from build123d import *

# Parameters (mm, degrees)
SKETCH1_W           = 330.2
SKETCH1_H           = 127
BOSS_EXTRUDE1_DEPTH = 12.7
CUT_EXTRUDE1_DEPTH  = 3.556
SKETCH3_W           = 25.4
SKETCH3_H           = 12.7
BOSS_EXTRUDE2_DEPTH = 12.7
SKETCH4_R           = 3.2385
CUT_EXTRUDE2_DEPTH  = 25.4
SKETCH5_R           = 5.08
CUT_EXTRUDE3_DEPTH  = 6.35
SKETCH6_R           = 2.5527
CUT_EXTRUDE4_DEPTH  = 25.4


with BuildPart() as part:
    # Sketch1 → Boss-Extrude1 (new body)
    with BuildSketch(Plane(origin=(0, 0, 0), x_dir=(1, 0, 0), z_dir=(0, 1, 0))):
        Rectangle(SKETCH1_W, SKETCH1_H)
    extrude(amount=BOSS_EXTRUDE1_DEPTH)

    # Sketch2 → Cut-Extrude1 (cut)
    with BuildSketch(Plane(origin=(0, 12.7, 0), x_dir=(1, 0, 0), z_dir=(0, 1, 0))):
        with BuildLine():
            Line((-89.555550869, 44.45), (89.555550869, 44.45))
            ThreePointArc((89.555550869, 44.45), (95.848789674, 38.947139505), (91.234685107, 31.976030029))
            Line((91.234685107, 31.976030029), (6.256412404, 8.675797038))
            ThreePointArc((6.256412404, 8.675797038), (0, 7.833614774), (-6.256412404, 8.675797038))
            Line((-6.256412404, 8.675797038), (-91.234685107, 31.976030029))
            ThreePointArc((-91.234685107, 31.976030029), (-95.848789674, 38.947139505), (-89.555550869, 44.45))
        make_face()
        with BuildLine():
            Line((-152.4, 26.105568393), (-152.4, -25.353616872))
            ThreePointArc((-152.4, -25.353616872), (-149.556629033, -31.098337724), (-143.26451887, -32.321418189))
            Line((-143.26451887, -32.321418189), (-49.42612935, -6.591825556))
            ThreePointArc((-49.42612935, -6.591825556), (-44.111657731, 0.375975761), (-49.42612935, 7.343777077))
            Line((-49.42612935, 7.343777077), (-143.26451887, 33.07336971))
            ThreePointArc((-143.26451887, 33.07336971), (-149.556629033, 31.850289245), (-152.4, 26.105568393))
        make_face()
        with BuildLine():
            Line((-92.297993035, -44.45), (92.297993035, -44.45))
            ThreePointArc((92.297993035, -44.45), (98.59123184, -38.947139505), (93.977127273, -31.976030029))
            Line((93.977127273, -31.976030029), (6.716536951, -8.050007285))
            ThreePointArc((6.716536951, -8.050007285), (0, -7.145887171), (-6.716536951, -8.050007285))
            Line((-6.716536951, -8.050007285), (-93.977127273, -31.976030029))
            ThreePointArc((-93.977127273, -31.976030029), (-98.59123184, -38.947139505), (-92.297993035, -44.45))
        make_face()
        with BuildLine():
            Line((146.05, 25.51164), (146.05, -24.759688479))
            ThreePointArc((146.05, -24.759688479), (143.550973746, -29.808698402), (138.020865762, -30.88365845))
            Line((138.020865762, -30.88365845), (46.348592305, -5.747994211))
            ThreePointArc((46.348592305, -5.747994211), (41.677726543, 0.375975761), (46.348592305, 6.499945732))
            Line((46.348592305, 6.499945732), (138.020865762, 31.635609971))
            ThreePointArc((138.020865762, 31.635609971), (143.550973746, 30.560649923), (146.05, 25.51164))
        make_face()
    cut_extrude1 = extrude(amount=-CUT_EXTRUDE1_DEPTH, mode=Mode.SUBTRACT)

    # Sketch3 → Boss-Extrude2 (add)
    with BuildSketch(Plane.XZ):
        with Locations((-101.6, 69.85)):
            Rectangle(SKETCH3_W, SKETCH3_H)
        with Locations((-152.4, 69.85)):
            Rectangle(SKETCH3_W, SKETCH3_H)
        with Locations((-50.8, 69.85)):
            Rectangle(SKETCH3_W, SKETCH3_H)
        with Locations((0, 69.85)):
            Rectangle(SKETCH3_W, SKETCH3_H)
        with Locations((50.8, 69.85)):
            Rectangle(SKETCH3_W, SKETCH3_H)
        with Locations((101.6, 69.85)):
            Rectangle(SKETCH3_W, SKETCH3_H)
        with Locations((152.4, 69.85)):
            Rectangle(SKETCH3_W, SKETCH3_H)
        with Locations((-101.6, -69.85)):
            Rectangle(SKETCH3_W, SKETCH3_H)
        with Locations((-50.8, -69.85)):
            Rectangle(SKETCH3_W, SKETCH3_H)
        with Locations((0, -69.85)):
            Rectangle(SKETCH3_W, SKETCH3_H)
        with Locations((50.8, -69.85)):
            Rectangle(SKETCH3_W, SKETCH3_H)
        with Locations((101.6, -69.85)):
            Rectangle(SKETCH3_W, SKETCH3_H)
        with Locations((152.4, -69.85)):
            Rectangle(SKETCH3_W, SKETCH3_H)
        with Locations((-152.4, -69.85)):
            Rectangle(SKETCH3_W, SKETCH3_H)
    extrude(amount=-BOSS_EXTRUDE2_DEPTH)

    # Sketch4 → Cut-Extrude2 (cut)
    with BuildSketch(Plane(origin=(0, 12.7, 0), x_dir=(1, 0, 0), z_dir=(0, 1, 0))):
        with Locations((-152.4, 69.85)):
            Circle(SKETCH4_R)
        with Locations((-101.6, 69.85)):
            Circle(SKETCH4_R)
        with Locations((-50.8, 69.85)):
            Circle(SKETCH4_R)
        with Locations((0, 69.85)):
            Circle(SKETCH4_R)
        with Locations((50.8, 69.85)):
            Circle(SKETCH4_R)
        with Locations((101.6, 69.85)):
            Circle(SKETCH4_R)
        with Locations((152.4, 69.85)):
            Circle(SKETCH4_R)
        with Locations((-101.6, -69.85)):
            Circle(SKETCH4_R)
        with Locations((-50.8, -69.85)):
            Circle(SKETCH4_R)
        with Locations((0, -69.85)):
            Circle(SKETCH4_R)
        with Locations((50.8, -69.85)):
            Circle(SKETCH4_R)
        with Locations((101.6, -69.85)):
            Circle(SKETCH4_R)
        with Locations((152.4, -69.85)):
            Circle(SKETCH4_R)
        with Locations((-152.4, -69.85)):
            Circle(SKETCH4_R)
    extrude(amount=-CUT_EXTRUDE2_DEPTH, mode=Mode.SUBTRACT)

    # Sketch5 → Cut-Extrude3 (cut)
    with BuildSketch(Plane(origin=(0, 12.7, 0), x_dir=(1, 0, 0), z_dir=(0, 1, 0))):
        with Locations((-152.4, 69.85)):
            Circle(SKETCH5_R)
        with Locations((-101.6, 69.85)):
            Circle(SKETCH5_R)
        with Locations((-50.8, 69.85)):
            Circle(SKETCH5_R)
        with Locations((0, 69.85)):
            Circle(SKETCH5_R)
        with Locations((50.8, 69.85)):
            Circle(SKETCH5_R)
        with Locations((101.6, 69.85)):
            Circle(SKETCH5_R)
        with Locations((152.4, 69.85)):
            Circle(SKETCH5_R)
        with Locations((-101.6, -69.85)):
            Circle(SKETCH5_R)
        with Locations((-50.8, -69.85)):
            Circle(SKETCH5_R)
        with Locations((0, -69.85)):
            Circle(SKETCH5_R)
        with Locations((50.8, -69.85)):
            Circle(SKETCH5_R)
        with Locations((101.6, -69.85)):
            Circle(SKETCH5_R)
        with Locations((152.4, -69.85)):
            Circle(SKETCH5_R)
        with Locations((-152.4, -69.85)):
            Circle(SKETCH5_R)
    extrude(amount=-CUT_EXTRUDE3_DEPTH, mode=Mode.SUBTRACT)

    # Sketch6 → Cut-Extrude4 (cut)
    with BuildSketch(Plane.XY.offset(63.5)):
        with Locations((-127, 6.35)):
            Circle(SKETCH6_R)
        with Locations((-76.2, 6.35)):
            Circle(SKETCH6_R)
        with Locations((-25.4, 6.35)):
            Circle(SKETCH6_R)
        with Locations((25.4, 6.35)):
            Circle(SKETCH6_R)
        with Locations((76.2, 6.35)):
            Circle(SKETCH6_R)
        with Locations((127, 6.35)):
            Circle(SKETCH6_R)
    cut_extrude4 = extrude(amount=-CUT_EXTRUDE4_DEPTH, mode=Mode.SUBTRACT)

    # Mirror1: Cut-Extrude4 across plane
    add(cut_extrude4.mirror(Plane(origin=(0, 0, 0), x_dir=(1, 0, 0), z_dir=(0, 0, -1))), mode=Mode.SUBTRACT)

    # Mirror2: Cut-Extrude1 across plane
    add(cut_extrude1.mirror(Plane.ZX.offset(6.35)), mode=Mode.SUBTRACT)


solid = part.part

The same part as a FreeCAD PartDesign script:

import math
import FreeCAD as App
import Part
import Sketcher

V = App.Vector
Q = App.Units.Quantity

doc = App.newDocument("Part")
body = doc.addObject("PartDesign::Body", "Body")

sketch1 = body.newObject("Sketcher::SketchObject", "Sketch")
sketch1.AttachmentSupport = (doc.getObject("XZ_Plane"), [""])
sketch1.MapMode = "FlatFace"
sketch1.addGeometry(Part.LineSegment(V(-165.1, -63.5, 0), V(-165.1, 63.5, 0)), False)
sketch1.addGeometry(Part.LineSegment(V(-165.1, 63.5, 0), V(165.1, 63.5, 0)), False)
sketch1.addGeometry(Part.LineSegment(V(165.1, 63.5, 0), V(165.1, -63.5, 0)), False)
sketch1.addGeometry(Part.LineSegment(V(165.1, -63.5, 0), V(-165.1, -63.5, 0)), False)
sketch1.addConstraint(Sketcher.Constraint("Coincident", 0, 2, 1, 1))
sketch1.addConstraint(Sketcher.Constraint("Coincident", 1, 2, 2, 1))
sketch1.addConstraint(Sketcher.Constraint("Coincident", 2, 2, 3, 1))
sketch1.addConstraint(Sketcher.Constraint("Coincident", 3, 2, 0, 1))
sketch1.addConstraint(Sketcher.Constraint("Vertical", 0))
sketch1.addConstraint(Sketcher.Constraint("Horizontal", 1))
sketch1.addConstraint(Sketcher.Constraint("Vertical", 2))
sketch1.addConstraint(Sketcher.Constraint("Horizontal", 3))
sketch1.addConstraint(Sketcher.Constraint("Symmetric", 0, 2, 2, 2, -1, 1))
sketch1.addConstraint(Sketcher.Constraint("DistanceX", 1, 1, 1, 2, Q("13 in")))
sketch1.addConstraint(Sketcher.Constraint("DistanceY", 0, 1, 0, 2, Q("5 in")))
pad1 = body.newObject("PartDesign::Pad", "Pad")
pad1.Profile = sketch1
pad1.Length = Q("0.5 in")
pad1.Reversed = True

sketch2 = body.newObject("Sketcher::SketchObject", "Sketch001")
sketch2.AttachmentSupport = (doc.getObject("XZ_Plane"), [""])
sketch2.MapMode = "FlatFace"
sketch2.AttachmentOffset = App.Placement(V(0, 0, -0.5 * 25.4), App.Rotation())
sketch2.addGeometry(Part.LineSegment(V(89.555551, -44.45, 0), V(-89.555551, -44.45, 0)), False)
sketch2.addGeometry(Part.ArcOfCircle(Part.Circle(V(-89.555551, -38.1, 0), V(0, 0, 1), 6.35), math.radians(105.333121), math.radians(270)), False)
sketch2.addGeometry(Part.LineSegment(V(-91.234685, -31.97603, 0), V(-6.256412, -8.675797, 0)), False)
sketch2.addGeometry(Part.ArcOfCircle(Part.Circle(V(0, -31.493557, 0), V(0, 0, 1), 23.659942), math.radians(74.666879), math.radians(105.333121)), False)
sketch2.addGeometry(Part.LineSegment(V(6.256412, -8.675797, 0), V(91.234685, -31.97603, 0)), False)
sketch2.addGeometry(Part.ArcOfCircle(Part.Circle(V(89.555551, -38.1, 0), V(0, 0, 1), 6.35), math.radians(-90), math.radians(74.666879)), False)
sketch2.addGeometry(Part.LineSegment(V(-152.4, -26.105568, 0), V(-152.4, 25.353617, 0)), False)
sketch2.addGeometry(Part.ArcOfCircle(Part.Circle(V(-145.175024, 25.353617, 0), V(0, 0, 1), 7.224976), math.radians(74.666879), math.radians(180)), False)
sketch2.addGeometry(Part.LineSegment(V(-143.264519, 32.321418, 0), V(-49.426129, 6.591826, 0)), False)
sketch2.addGeometry(Part.ArcOfCircle(Part.Circle(V(-51.336634, -0.375976, 0), V(0, 0, 1), 7.224976), math.radians(-74.666879), math.radians(74.666879)), False)
sketch2.addGeometry(Part.LineSegment(V(-49.426129, -7.343777, 0), V(-143.264519, -33.07337, 0)), False)
sketch2.addGeometry(Part.ArcOfCircle(Part.Circle(V(-145.175024, -26.105568, 0), V(0, 0, 1), 7.224976), math.radians(180), math.radians(285.333121)), False)
sketch2.addGeometry(Part.LineSegment(V(-92.297993, 44.45, 0), V(92.297993, 44.45, 0)), False)
sketch2.addGeometry(Part.ArcOfCircle(Part.Circle(V(92.297993, 38.1, 0), V(0, 0, 1), 6.35), math.radians(-74.666879), math.radians(90)), False)
sketch2.addGeometry(Part.LineSegment(V(93.977127, 31.97603, 0), V(6.716537, 8.050007, 0)), False)
sketch2.addGeometry(Part.ArcOfCircle(Part.Circle(V(0, 32.545887, 0), V(0, 0, 1), 25.4), math.radians(-105.333121), math.radians(-74.666879)), False)
sketch2.addGeometry(Part.LineSegment(V(-6.716537, 8.050007, 0), V(-93.977127, 31.97603, 0)), False)
sketch2.addGeometry(Part.ArcOfCircle(Part.Circle(V(-92.297993, 38.1, 0), V(0, 0, 1), 6.35), math.radians(90), math.radians(254.666879)), False)
sketch2.addGeometry(Part.LineSegment(V(146.05, 24.759688, 0), V(146.05, -25.51164, 0)), False)
sketch2.addGeometry(Part.ArcOfCircle(Part.Circle(V(139.7, -25.51164, 0), V(0, 0, 1), 6.35), math.radians(-105.333121), math.radians(0)), False)
sketch2.addGeometry(Part.LineSegment(V(138.020866, -31.63561, 0), V(46.348592, -6.499946, 0)), False)
sketch2.addGeometry(Part.ArcOfCircle(Part.Circle(V(48.027727, -0.375976, 0), V(0, 0, 1), 6.35), math.radians(105.333121), math.radians(254.666879)), False)
sketch2.addGeometry(Part.LineSegment(V(46.348592, 5.747994, 0), V(138.020866, 30.883658, 0)), False)
sketch2.addGeometry(Part.ArcOfCircle(Part.Circle(V(139.7, 24.759688, 0), V(0, 0, 1), 6.35), math.radians(0), math.radians(105.333121)), False)
sketch2.addConstraint(Sketcher.Constraint("Tangent", 0, 2, 1, 2))
sketch2.addConstraint(Sketcher.Constraint("Tangent", 1, 1, 2, 1))
sketch2.addConstraint(Sketcher.Constraint("Tangent", 2, 2, 3, 2))
sketch2.addConstraint(Sketcher.Constraint("Tangent", 3, 1, 4, 1))
sketch2.addConstraint(Sketcher.Constraint("Tangent", 4, 2, 5, 2))
sketch2.addConstraint(Sketcher.Constraint("Tangent", 5, 1, 0, 1))
sketch2.addConstraint(Sketcher.Constraint("Tangent", 6, 2, 7, 2))
sketch2.addConstraint(Sketcher.Constraint("Tangent", 7, 1, 8, 1))
sketch2.addConstraint(Sketcher.Constraint("Tangent", 8, 2, 9, 2))
sketch2.addConstraint(Sketcher.Constraint("Tangent", 9, 1, 10, 1))
sketch2.addConstraint(Sketcher.Constraint("Tangent", 10, 2, 11, 2))
sketch2.addConstraint(Sketcher.Constraint("Tangent", 11, 1, 6, 1))
sketch2.addConstraint(Sketcher.Constraint("Tangent", 12, 2, 13, 2))
sketch2.addConstraint(Sketcher.Constraint("Tangent", 13, 1, 14, 1))
sketch2.addConstraint(Sketcher.Constraint("Tangent", 14, 2, 15, 2))
sketch2.addConstraint(Sketcher.Constraint("Tangent", 15, 1, 16, 1))
sketch2.addConstraint(Sketcher.Constraint("Tangent", 16, 2, 17, 2))
sketch2.addConstraint(Sketcher.Constraint("Tangent", 17, 1, 12, 1))
sketch2.addConstraint(Sketcher.Constraint("Tangent", 18, 2, 19, 2))
sketch2.addConstraint(Sketcher.Constraint("Tangent", 19, 1, 20, 1))
sketch2.addConstraint(Sketcher.Constraint("Tangent", 20, 2, 21, 2))
sketch2.addConstraint(Sketcher.Constraint("Tangent", 21, 1, 22, 1))
sketch2.addConstraint(Sketcher.Constraint("Tangent", 22, 2, 23, 2))
sketch2.addConstraint(Sketcher.Constraint("Tangent", 23, 1, 18, 1))
sketch2.addConstraint(Sketcher.Constraint("Horizontal", 0))
sketch2.addConstraint(Sketcher.Constraint("Vertical", 6))
sketch2.addConstraint(Sketcher.Constraint("Horizontal", 12))
sketch2.addConstraint(Sketcher.Constraint("Vertical", 18))
sketch2.addConstraint(Sketcher.Constraint("Equal", 1, 5))
sketch2.addConstraint(Sketcher.Constraint("Equal", 7, 9))
sketch2.addConstraint(Sketcher.Constraint("Equal", 9, 11))
sketch2.addConstraint(Sketcher.Constraint("Equal", 5, 13))
sketch2.addConstraint(Sketcher.Constraint("Equal", 13, 17))
sketch2.addConstraint(Sketcher.Constraint("Equal", 17, 19))
sketch2.addConstraint(Sketcher.Constraint("Equal", 19, 21))
sketch2.addConstraint(Sketcher.Constraint("Equal", 21, 23))
sketch2.addConstraint(Sketcher.Constraint("Symmetric", 2, 2, 3, 1, -2))
sketch2.addConstraint(Sketcher.Constraint("Symmetric", 14, 2, 15, 1, -2))
sketch2.addConstraint(Sketcher.Constraint("Parallel", 4, 8))
sketch2.addConstraint(Sketcher.Constraint("Parallel", 2, 10))
sketch2.addConstraint(Sketcher.Constraint("Parallel", 10, 14))
sketch2.addConstraint(Sketcher.Constraint("Parallel", 16, 20))
sketch2.addConstraint(Sketcher.Constraint("Parallel", 14, 22))
sketch2.addConstraint(Sketcher.Constraint("Horizontal", 9, 3, 21, 3))
sketch2.addConstraint(Sketcher.Constraint("Radius", 15, Q("1 in")))
sketch2.addConstraint(Sketcher.Constraint("Radius", 1, Q("0.25 in")))
sketch2.addConstraint(Sketcher.Constraint("DistanceX", 6, 2, -1, 1, Q("6 in")))
sketch2.addConstraint(Sketcher.Constraint("DistanceY", 5, 3, 13, 3, Q("3 in")))
sketch2.addConstraint(Sketcher.Constraint("DistanceY", 1, 3, -1, 1, Q("1.5 in")))
sketch2.addConstraint(Sketcher.Constraint("DistanceX", -1, 1, 19, 3, Q("5.5 in")))
sketch2.addConstraint(Sketcher.Constraint("DistanceX", 0, 2, 0, 1, Q("179.111102 mm")))
sketch2.addConstraint(Sketcher.Constraint("Radius", 3, Q("23.659942 mm")))
sketch2.addConstraint(Sketcher.Constraint("Radius", 7, Q("7.224976 mm")))
sketch2.addConstraint(Sketcher.Constraint("DistanceY", 18, 2, 18, 1, Q("50.271328 mm")))
sketch2.addConstraint(Sketcher.Constraint("DistanceY", 23, 3, 15, 3, Q("7.786199 mm")))
sketch2.addConstraint(Sketcher.Constraint("DistanceX", 21, 3, 13, 1, Q("45.949401 mm")))
sketch2.addConstraint(Sketcher.Constraint("Distance", 2, Q("88.114742 mm")))
sketch2.addConstraint(Sketcher.Constraint("DistanceY", 6, 1, 6, 2, Q("51.459185 mm")))
pocket1 = body.newObject("PartDesign::Pocket", "Pocket")
pocket1.Profile = sketch2
pocket1.Length = Q("0.14 in")
pocket1.Reversed = True

sketch3 = body.newObject("Sketcher::SketchObject", "Sketch002")
sketch3.AttachmentSupport = (doc.getObject("XZ_Plane"), [""])
sketch3.MapMode = "FlatFace"
sketch3.addGeometry(Part.LineSegment(V(-114.3, 76.2, 0), V(-114.3, 63.5, 0)), False)
sketch3.addGeometry(Part.LineSegment(V(-114.3, 63.5, 0), V(-88.9, 63.5, 0)), False)
sketch3.addGeometry(Part.LineSegment(V(-88.9, 63.5, 0), V(-88.9, 76.2, 0)), False)
sketch3.addGeometry(Part.LineSegment(V(-88.9, 76.2, 0), V(-114.3, 76.2, 0)), False)
sketch3.addGeometry(Part.LineSegment(V(-165.1, 76.2, 0), V(-165.1, 63.5, 0)), False)
sketch3.addGeometry(Part.LineSegment(V(-165.1, 63.5, 0), V(-139.7, 63.5, 0)), False)
sketch3.addGeometry(Part.LineSegment(V(-139.7, 63.5, 0), V(-139.7, 76.2, 0)), False)
sketch3.addGeometry(Part.LineSegment(V(-139.7, 76.2, 0), V(-165.1, 76.2, 0)), False)
sketch3.addGeometry(Part.LineSegment(V(-63.5, 76.2, 0), V(-63.5, 63.5, 0)), False)
sketch3.addGeometry(Part.LineSegment(V(-63.5, 63.5, 0), V(-38.1, 63.5, 0)), False)
sketch3.addGeometry(Part.LineSegment(V(-38.1, 63.5, 0), V(-38.1, 76.2, 0)), False)
sketch3.addGeometry(Part.LineSegment(V(-38.1, 76.2, 0), V(-63.5, 76.2, 0)), False)
sketch3.addGeometry(Part.LineSegment(V(-12.7, 76.2, 0), V(-12.7, 63.5, 0)), False)
sketch3.addGeometry(Part.LineSegment(V(-12.7, 63.5, 0), V(12.7, 63.5, 0)), False)
sketch3.addGeometry(Part.LineSegment(V(12.7, 63.5, 0), V(12.7, 76.2, 0)), False)
sketch3.addGeometry(Part.LineSegment(V(12.7, 76.2, 0), V(-12.7, 76.2, 0)), False)
sketch3.addGeometry(Part.LineSegment(V(38.1, 76.2, 0), V(38.1, 63.5, 0)), False)
sketch3.addGeometry(Part.LineSegment(V(38.1, 63.5, 0), V(63.5, 63.5, 0)), False)
sketch3.addGeometry(Part.LineSegment(V(63.5, 63.5, 0), V(63.5, 76.2, 0)), False)
sketch3.addGeometry(Part.LineSegment(V(63.5, 76.2, 0), V(38.1, 76.2, 0)), False)
sketch3.addGeometry(Part.LineSegment(V(88.9, 76.2, 0), V(88.9, 63.5, 0)), False)
sketch3.addGeometry(Part.LineSegment(V(88.9, 63.5, 0), V(114.3, 63.5, 0)), False)
sketch3.addGeometry(Part.LineSegment(V(114.3, 63.5, 0), V(114.3, 76.2, 0)), False)
sketch3.addGeometry(Part.LineSegment(V(114.3, 76.2, 0), V(88.9, 76.2, 0)), False)
sketch3.addGeometry(Part.LineSegment(V(139.7, 76.2, 0), V(139.7, 63.5, 0)), False)
sketch3.addGeometry(Part.LineSegment(V(139.7, 63.5, 0), V(165.1, 63.5, 0)), False)
sketch3.addGeometry(Part.LineSegment(V(165.1, 63.5, 0), V(165.1, 76.2, 0)), False)
sketch3.addGeometry(Part.LineSegment(V(165.1, 76.2, 0), V(139.7, 76.2, 0)), False)
sketch3.addGeometry(Part.LineSegment(V(-114.3, -63.5, 0), V(-114.3, -76.2, 0)), False)
sketch3.addGeometry(Part.LineSegment(V(-114.3, -76.2, 0), V(-88.9, -76.2, 0)), False)
sketch3.addGeometry(Part.LineSegment(V(-88.9, -76.2, 0), V(-88.9, -63.5, 0)), False)
sketch3.addGeometry(Part.LineSegment(V(-88.9, -63.5, 0), V(-114.3, -63.5, 0)), False)
sketch3.addGeometry(Part.LineSegment(V(-63.5, -63.5, 0), V(-63.5, -76.2, 0)), False)
sketch3.addGeometry(Part.LineSegment(V(-63.5, -76.2, 0), V(-38.1, -76.2, 0)), False)
sketch3.addGeometry(Part.LineSegment(V(-38.1, -76.2, 0), V(-38.1, -63.5, 0)), False)
sketch3.addGeometry(Part.LineSegment(V(-38.1, -63.5, 0), V(-63.5, -63.5, 0)), False)
sketch3.addGeometry(Part.LineSegment(V(-12.7, -63.5, 0), V(-12.7, -76.2, 0)), False)
sketch3.addGeometry(Part.LineSegment(V(-12.7, -76.2, 0), V(12.7, -76.2, 0)), False)
sketch3.addGeometry(Part.LineSegment(V(12.7, -76.2, 0), V(12.7, -63.5, 0)), False)
sketch3.addGeometry(Part.LineSegment(V(12.7, -63.5, 0), V(-12.7, -63.5, 0)), False)
sketch3.addGeometry(Part.LineSegment(V(38.1, -63.5, 0), V(38.1, -76.2, 0)), False)
sketch3.addGeometry(Part.LineSegment(V(38.1, -76.2, 0), V(63.5, -76.2, 0)), False)
sketch3.addGeometry(Part.LineSegment(V(63.5, -76.2, 0), V(63.5, -63.5, 0)), False)
sketch3.addGeometry(Part.LineSegment(V(63.5, -63.5, 0), V(38.1, -63.5, 0)), False)
sketch3.addGeometry(Part.LineSegment(V(88.9, -63.5, 0), V(88.9, -76.2, 0)), False)
sketch3.addGeometry(Part.LineSegment(V(88.9, -76.2, 0), V(114.3, -76.2, 0)), False)
sketch3.addGeometry(Part.LineSegment(V(114.3, -76.2, 0), V(114.3, -63.5, 0)), False)
sketch3.addGeometry(Part.LineSegment(V(114.3, -63.5, 0), V(88.9, -63.5, 0)), False)
sketch3.addGeometry(Part.LineSegment(V(139.7, -63.5, 0), V(139.7, -76.2, 0)), False)
sketch3.addGeometry(Part.LineSegment(V(139.7, -76.2, 0), V(165.1, -76.2, 0)), False)
sketch3.addGeometry(Part.LineSegment(V(165.1, -76.2, 0), V(165.1, -63.5, 0)), False)
sketch3.addGeometry(Part.LineSegment(V(165.1, -63.5, 0), V(139.7, -63.5, 0)), False)
sketch3.addGeometry(Part.LineSegment(V(-165.1, -63.5, 0), V(-165.1, -76.2, 0)), False)
sketch3.addGeometry(Part.LineSegment(V(-165.1, -76.2, 0), V(-139.7, -76.2, 0)), False)
sketch3.addGeometry(Part.LineSegment(V(-139.7, -76.2, 0), V(-139.7, -63.5, 0)), False)
sketch3.addGeometry(Part.LineSegment(V(-139.7, -63.5, 0), V(-165.1, -63.5, 0)), False)
sketch3.addConstraint(Sketcher.Constraint("Coincident", 0, 2, 1, 1))
sketch3.addConstraint(Sketcher.Constraint("Coincident", 1, 2, 2, 1))
sketch3.addConstraint(Sketcher.Constraint("Coincident", 2, 2, 3, 1))
sketch3.addConstraint(Sketcher.Constraint("Coincident", 3, 2, 0, 1))
sketch3.addConstraint(Sketcher.Constraint("Coincident", 4, 2, 5, 1))
sketch3.addConstraint(Sketcher.Constraint("Coincident", 5, 2, 6, 1))
sketch3.addConstraint(Sketcher.Constraint("Coincident", 6, 2, 7, 1))
sketch3.addConstraint(Sketcher.Constraint("Coincident", 7, 2, 4, 1))
sketch3.addConstraint(Sketcher.Constraint("Coincident", 8, 2, 9, 1))
sketch3.addConstraint(Sketcher.Constraint("Coincident", 9, 2, 10, 1))
sketch3.addConstraint(Sketcher.Constraint("Coincident", 10, 2, 11, 1))
sketch3.addConstraint(Sketcher.Constraint("Coincident", 11, 2, 8, 1))
sketch3.addConstraint(Sketcher.Constraint("Coincident", 12, 2, 13, 1))
sketch3.addConstraint(Sketcher.Constraint("Coincident", 13, 2, 14, 1))
sketch3.addConstraint(Sketcher.Constraint("Coincident", 14, 2, 15, 1))
sketch3.addConstraint(Sketcher.Constraint("Coincident", 15, 2, 12, 1))
sketch3.addConstraint(Sketcher.Constraint("Coincident", 16, 2, 17, 1))
sketch3.addConstraint(Sketcher.Constraint("Coincident", 17, 2, 18, 1))
sketch3.addConstraint(Sketcher.Constraint("Coincident", 18, 2, 19, 1))
sketch3.addConstraint(Sketcher.Constraint("Coincident", 19, 2, 16, 1))
sketch3.addConstraint(Sketcher.Constraint("Coincident", 20, 2, 21, 1))
sketch3.addConstraint(Sketcher.Constraint("Coincident", 21, 2, 22, 1))
sketch3.addConstraint(Sketcher.Constraint("Coincident", 22, 2, 23, 1))
sketch3.addConstraint(Sketcher.Constraint("Coincident", 23, 2, 20, 1))
sketch3.addConstraint(Sketcher.Constraint("Coincident", 24, 2, 25, 1))
sketch3.addConstraint(Sketcher.Constraint("Coincident", 25, 2, 26, 1))
sketch3.addConstraint(Sketcher.Constraint("Coincident", 26, 2, 27, 1))
sketch3.addConstraint(Sketcher.Constraint("Coincident", 27, 2, 24, 1))
sketch3.addConstraint(Sketcher.Constraint("Coincident", 28, 2, 29, 1))
sketch3.addConstraint(Sketcher.Constraint("Coincident", 29, 2, 30, 1))
sketch3.addConstraint(Sketcher.Constraint("Coincident", 30, 2, 31, 1))
sketch3.addConstraint(Sketcher.Constraint("Coincident", 31, 2, 28, 1))
sketch3.addConstraint(Sketcher.Constraint("Coincident", 32, 2, 33, 1))
sketch3.addConstraint(Sketcher.Constraint("Coincident", 33, 2, 34, 1))
sketch3.addConstraint(Sketcher.Constraint("Coincident", 34, 2, 35, 1))
sketch3.addConstraint(Sketcher.Constraint("Coincident", 35, 2, 32, 1))
sketch3.addConstraint(Sketcher.Constraint("Coincident", 36, 2, 37, 1))
sketch3.addConstraint(Sketcher.Constraint("Coincident", 37, 2, 38, 1))
sketch3.addConstraint(Sketcher.Constraint("Coincident", 38, 2, 39, 1))
sketch3.addConstraint(Sketcher.Constraint("Coincident", 39, 2, 36, 1))
sketch3.addConstraint(Sketcher.Constraint("Coincident", 40, 2, 41, 1))
sketch3.addConstraint(Sketcher.Constraint("Coincident", 41, 2, 42, 1))
sketch3.addConstraint(Sketcher.Constraint("Coincident", 42, 2, 43, 1))
sketch3.addConstraint(Sketcher.Constraint("Coincident", 43, 2, 40, 1))
sketch3.addConstraint(Sketcher.Constraint("Coincident", 44, 2, 45, 1))
sketch3.addConstraint(Sketcher.Constraint("Coincident", 45, 2, 46, 1))
sketch3.addConstraint(Sketcher.Constraint("Coincident", 46, 2, 47, 1))
sketch3.addConstraint(Sketcher.Constraint("Coincident", 47, 2, 44, 1))
sketch3.addConstraint(Sketcher.Constraint("Coincident", 48, 2, 49, 1))
sketch3.addConstraint(Sketcher.Constraint("Coincident", 49, 2, 50, 1))
sketch3.addConstraint(Sketcher.Constraint("Coincident", 50, 2, 51, 1))
sketch3.addConstraint(Sketcher.Constraint("Coincident", 51, 2, 48, 1))
sketch3.addConstraint(Sketcher.Constraint("Coincident", 52, 2, 53, 1))
sketch3.addConstraint(Sketcher.Constraint("Coincident", 53, 2, 54, 1))
sketch3.addConstraint(Sketcher.Constraint("Coincident", 54, 2, 55, 1))
sketch3.addConstraint(Sketcher.Constraint("Coincident", 55, 2, 52, 1))
sketch3.addConstraint(Sketcher.Constraint("Vertical", 0))
sketch3.addConstraint(Sketcher.Constraint("Horizontal", 1))
sketch3.addConstraint(Sketcher.Constraint("Vertical", 2))
sketch3.addConstraint(Sketcher.Constraint("Horizontal", 3))
sketch3.addConstraint(Sketcher.Constraint("Vertical", 4))
sketch3.addConstraint(Sketcher.Constraint("Horizontal", 5))
sketch3.addConstraint(Sketcher.Constraint("Vertical", 6))
sketch3.addConstraint(Sketcher.Constraint("Horizontal", 7))
sketch3.addConstraint(Sketcher.Constraint("Vertical", 8))
sketch3.addConstraint(Sketcher.Constraint("Horizontal", 9))
sketch3.addConstraint(Sketcher.Constraint("Vertical", 10))
sketch3.addConstraint(Sketcher.Constraint("Horizontal", 11))
sketch3.addConstraint(Sketcher.Constraint("Vertical", 12))
sketch3.addConstraint(Sketcher.Constraint("Horizontal", 13))
sketch3.addConstraint(Sketcher.Constraint("Vertical", 14))
sketch3.addConstraint(Sketcher.Constraint("Horizontal", 15))
sketch3.addConstraint(Sketcher.Constraint("Vertical", 16))
sketch3.addConstraint(Sketcher.Constraint("Horizontal", 17))
sketch3.addConstraint(Sketcher.Constraint("Vertical", 18))
sketch3.addConstraint(Sketcher.Constraint("Horizontal", 19))
sketch3.addConstraint(Sketcher.Constraint("Vertical", 20))
sketch3.addConstraint(Sketcher.Constraint("Horizontal", 21))
sketch3.addConstraint(Sketcher.Constraint("Vertical", 22))
sketch3.addConstraint(Sketcher.Constraint("Horizontal", 23))
sketch3.addConstraint(Sketcher.Constraint("Vertical", 24))
sketch3.addConstraint(Sketcher.Constraint("Horizontal", 25))
sketch3.addConstraint(Sketcher.Constraint("Vertical", 26))
sketch3.addConstraint(Sketcher.Constraint("Horizontal", 27))
sketch3.addConstraint(Sketcher.Constraint("Vertical", 28))
sketch3.addConstraint(Sketcher.Constraint("Horizontal", 29))
sketch3.addConstraint(Sketcher.Constraint("Vertical", 30))
sketch3.addConstraint(Sketcher.Constraint("Horizontal", 31))
sketch3.addConstraint(Sketcher.Constraint("Vertical", 32))
sketch3.addConstraint(Sketcher.Constraint("Horizontal", 33))
sketch3.addConstraint(Sketcher.Constraint("Vertical", 34))
sketch3.addConstraint(Sketcher.Constraint("Horizontal", 35))
sketch3.addConstraint(Sketcher.Constraint("Vertical", 36))
sketch3.addConstraint(Sketcher.Constraint("Horizontal", 37))
sketch3.addConstraint(Sketcher.Constraint("Vertical", 38))
sketch3.addConstraint(Sketcher.Constraint("Horizontal", 39))
sketch3.addConstraint(Sketcher.Constraint("Vertical", 40))
sketch3.addConstraint(Sketcher.Constraint("Horizontal", 41))
sketch3.addConstraint(Sketcher.Constraint("Vertical", 42))
sketch3.addConstraint(Sketcher.Constraint("Horizontal", 43))
sketch3.addConstraint(Sketcher.Constraint("Vertical", 44))
sketch3.addConstraint(Sketcher.Constraint("Horizontal", 45))
sketch3.addConstraint(Sketcher.Constraint("Vertical", 46))
sketch3.addConstraint(Sketcher.Constraint("Horizontal", 47))
sketch3.addConstraint(Sketcher.Constraint("Vertical", 48))
sketch3.addConstraint(Sketcher.Constraint("Horizontal", 49))
sketch3.addConstraint(Sketcher.Constraint("Vertical", 50))
sketch3.addConstraint(Sketcher.Constraint("Horizontal", 51))
sketch3.addConstraint(Sketcher.Constraint("Vertical", 52))
sketch3.addConstraint(Sketcher.Constraint("Horizontal", 53))
sketch3.addConstraint(Sketcher.Constraint("Vertical", 54))
sketch3.addConstraint(Sketcher.Constraint("Horizontal", 55))
sketch3.addConstraint(Sketcher.Constraint("Symmetric", 22, 2, 28, 2, -1, 1))
sketch3.addConstraint(Sketcher.Constraint("Symmetric", 20, 2, 30, 2, -1, 1))
sketch3.addConstraint(Sketcher.Constraint("Symmetric", 18, 2, 32, 2, -1, 1))
sketch3.addConstraint(Sketcher.Constraint("Symmetric", 16, 2, 34, 2, -1, 1))
sketch3.addConstraint(Sketcher.Constraint("Symmetric", 14, 2, 36, 2, -1, 1))
sketch3.addConstraint(Sketcher.Constraint("Symmetric", 12, 2, 38, 2, -1, 1))
sketch3.addConstraint(Sketcher.Constraint("Symmetric", 10, 2, 40, 2, -1, 1))
sketch3.addConstraint(Sketcher.Constraint("Symmetric", 8, 2, 42, 2, -1, 1))
sketch3.addConstraint(Sketcher.Constraint("Symmetric", 2, 2, 44, 2, -1, 1))
sketch3.addConstraint(Sketcher.Constraint("Symmetric", 0, 2, 46, 2, -1, 1))
sketch3.addConstraint(Sketcher.Constraint("Symmetric", 6, 2, 48, 2, -1, 1))
sketch3.addConstraint(Sketcher.Constraint("Symmetric", 4, 2, 50, 2, -1, 1))
sketch3.addConstraint(Sketcher.Constraint("Symmetric", 26, 2, 52, 2, -1, 1))
sketch3.addConstraint(Sketcher.Constraint("Symmetric", 24, 2, 54, 2, -1, 1))
sketch3.addConstraint(Sketcher.Constraint("Symmetric", 9, 2, 16, 2, -2))
sketch3.addConstraint(Sketcher.Constraint("Symmetric", 11, 2, 18, 2, -2))
sketch3.addConstraint(Sketcher.Constraint("Symmetric", 1, 2, 20, 2, -2))
sketch3.addConstraint(Sketcher.Constraint("Symmetric", 3, 2, 22, 2, -2))
sketch3.addConstraint(Sketcher.Constraint("Symmetric", 5, 2, 24, 2, -2))
sketch3.addConstraint(Sketcher.Constraint("Symmetric", 7, 2, 26, 2, -2))
sketch3.addConstraint(Sketcher.Constraint("Horizontal", 1, 2, 4, 2))
sketch3.addConstraint(Sketcher.Constraint("Horizontal", 3, 2, 6, 2))
sketch3.addConstraint(Sketcher.Constraint("Horizontal", 5, 2, 8, 2))
sketch3.addConstraint(Sketcher.Constraint("Horizontal", 7, 2, 10, 2))
sketch3.addConstraint(Sketcher.Constraint("Horizontal", 9, 2, 12, 2))
sketch3.addConstraint(Sketcher.Constraint("Horizontal", 11, 2, 14, 2))
sketch3.addConstraint(Sketcher.Constraint("Vertical", 15, 2, 36, 2))
sketch3.addConstraint(Sketcher.Constraint("Equal", 3, 5))
sketch3.addConstraint(Sketcher.Constraint("Equal", 7, 9))
sketch3.addConstraint(Sketcher.Constraint("Equal", 11, 13))
sketch3.addConstraint(Sketcher.Constraint("DistanceX", 1, 1, 1, 2, Q("1 in")))
sketch3.addConstraint(Sketcher.Constraint("DistanceY", 0, 2, 0, 1, Q("0.5 in")))
sketch3.addConstraint(Sketcher.Constraint("DistanceY", -1, 1, 2, 2, Q("3 in")))
sketch3.addConstraint(Sketcher.Constraint("DistanceX", 4, 2, 0, 2, Q("2 in")))
sketch3.addConstraint(Sketcher.Constraint("DistanceX", 1, 2, 8, 2, Q("1 in")))
sketch3.addConstraint(Sketcher.Constraint("DistanceX", 9, 2, 12, 2, Q("1 in")))
pad2 = body.newObject("PartDesign::Pad", "Pad001")
pad2.Profile = sketch3
pad2.Length = Q("0.5 in")
pad2.Reversed = True

sketch4 = body.newObject("Sketcher::SketchObject", "Sketch003")
sketch4.AttachmentSupport = (doc.getObject("XZ_Plane"), [""])
sketch4.MapMode = "FlatFace"
sketch4.AttachmentOffset = App.Placement(V(0, 0, -0.5 * 25.4), App.Rotation())
sketch4.addGeometry(Part.Circle(V(-152.4, -69.85, 0), V(0, 0, 1), 3.2385), False)
sketch4.addGeometry(Part.Circle(V(-101.6, -69.85, 0), V(0, 0, 1), 3.2385), False)
sketch4.addGeometry(Part.Circle(V(-50.8, -69.85, 0), V(0, 0, 1), 3.2385), False)
sketch4.addGeometry(Part.Circle(V(0, -69.85, 0), V(0, 0, 1), 3.2385), False)
sketch4.addGeometry(Part.Circle(V(50.8, -69.85, 0), V(0, 0, 1), 3.2385), False)
sketch4.addGeometry(Part.Circle(V(101.6, -69.85, 0), V(0, 0, 1), 3.2385), False)
sketch4.addGeometry(Part.Circle(V(152.4, -69.85, 0), V(0, 0, 1), 3.2385), False)
sketch4.addGeometry(Part.Circle(V(-101.6, 69.85, 0), V(0, 0, 1), 3.2385), False)
sketch4.addGeometry(Part.Circle(V(-50.8, 69.85, 0), V(0, 0, 1), 3.2385), False)
sketch4.addGeometry(Part.Circle(V(0, 69.85, 0), V(0, 0, 1), 3.2385), False)
sketch4.addGeometry(Part.Circle(V(50.8, 69.85, 0), V(0, 0, 1), 3.2385), False)
sketch4.addGeometry(Part.Circle(V(101.6, 69.85, 0), V(0, 0, 1), 3.2385), False)
sketch4.addGeometry(Part.Circle(V(152.4, 69.85, 0), V(0, 0, 1), 3.2385), False)
sketch4.addGeometry(Part.Circle(V(-152.4, 69.85, 0), V(0, 0, 1), 3.2385), False)
sketch4.addConstraint(Sketcher.Constraint("Equal", 0, 1))
sketch4.addConstraint(Sketcher.Constraint("Equal", 1, 2))
sketch4.addConstraint(Sketcher.Constraint("Equal", 2, 3))
sketch4.addConstraint(Sketcher.Constraint("Equal", 3, 4))
sketch4.addConstraint(Sketcher.Constraint("Equal", 4, 5))
sketch4.addConstraint(Sketcher.Constraint("Equal", 5, 6))
sketch4.addConstraint(Sketcher.Constraint("Equal", 6, 7))
sketch4.addConstraint(Sketcher.Constraint("Equal", 7, 8))
sketch4.addConstraint(Sketcher.Constraint("Equal", 8, 9))
sketch4.addConstraint(Sketcher.Constraint("Equal", 9, 10))
sketch4.addConstraint(Sketcher.Constraint("Equal", 10, 11))
sketch4.addConstraint(Sketcher.Constraint("Equal", 11, 12))
sketch4.addConstraint(Sketcher.Constraint("Equal", 12, 13))
sketch4.addConstraint(Sketcher.Constraint("Symmetric", 5, 3, 7, 3, -1, 1))
sketch4.addConstraint(Sketcher.Constraint("Symmetric", 4, 3, 8, 3, -1, 1))
sketch4.addConstraint(Sketcher.Constraint("Symmetric", 3, 3, 9, 3, -1, 1))
sketch4.addConstraint(Sketcher.Constraint("Symmetric", 2, 3, 10, 3, -1, 1))
sketch4.addConstraint(Sketcher.Constraint("Symmetric", 1, 3, 11, 3, -1, 1))
sketch4.addConstraint(Sketcher.Constraint("Symmetric", 0, 3, 12, 3, -1, 1))
sketch4.addConstraint(Sketcher.Constraint("Symmetric", 6, 3, 13, 3, -1, 1))
sketch4.addConstraint(Sketcher.Constraint("Symmetric", 2, 3, 4, 3, -2))
sketch4.addConstraint(Sketcher.Constraint("Symmetric", 1, 3, 5, 3, -2))
sketch4.addConstraint(Sketcher.Constraint("Symmetric", 0, 3, 6, 3, -2))
sketch4.addConstraint(Sketcher.Constraint("PointOnObject", 3, 3, -2))
sketch4.addConstraint(Sketcher.Constraint("Horizontal", 0, 3, 1, 3))
sketch4.addConstraint(Sketcher.Constraint("Horizontal", 1, 3, 2, 3))
sketch4.addConstraint(Sketcher.Constraint("Horizontal", 2, 3, 3, 3))
sketch4.addConstraint(Sketcher.Constraint("Diameter", 0, Q("0.255 in")))
sketch4.addConstraint(Sketcher.Constraint("DistanceX", 0, 3, -1, 1, Q("6 in")))
sketch4.addConstraint(Sketcher.Constraint("DistanceX", 1, 3, -1, 1, Q("4 in")))
sketch4.addConstraint(Sketcher.Constraint("DistanceX", 2, 3, -1, 1, Q("2 in")))
sketch4.addConstraint(Sketcher.Constraint("DistanceY", 1, 3, 7, 3, Q("5.5 in")))
pocket2 = body.newObject("PartDesign::Pocket", "Pocket001")
pocket2.Profile = sketch4
pocket2.Length = Q("1 in")
pocket2.Reversed = True

sketch5 = body.newObject("Sketcher::SketchObject", "Sketch004")
sketch5.AttachmentSupport = (doc.getObject("XZ_Plane"), [""])
sketch5.MapMode = "FlatFace"
sketch5.AttachmentOffset = App.Placement(V(0, 0, -0.5 * 25.4), App.Rotation())
sketch5.addGeometry(Part.Circle(V(-152.4, -69.85, 0), V(0, 0, 1), 5.08), False)
sketch5.addGeometry(Part.Circle(V(-101.6, -69.85, 0), V(0, 0, 1), 5.08), False)
sketch5.addGeometry(Part.Circle(V(-50.8, -69.85, 0), V(0, 0, 1), 5.08), False)
sketch5.addGeometry(Part.Circle(V(0, -69.85, 0), V(0, 0, 1), 5.08), False)
sketch5.addGeometry(Part.Circle(V(50.8, -69.85, 0), V(0, 0, 1), 5.08), False)
sketch5.addGeometry(Part.Circle(V(101.6, -69.85, 0), V(0, 0, 1), 5.08), False)
sketch5.addGeometry(Part.Circle(V(152.4, -69.85, 0), V(0, 0, 1), 5.08), False)
sketch5.addGeometry(Part.Circle(V(-101.6, 69.85, 0), V(0, 0, 1), 5.08), False)
sketch5.addGeometry(Part.Circle(V(-50.8, 69.85, 0), V(0, 0, 1), 5.08), False)
sketch5.addGeometry(Part.Circle(V(0, 69.85, 0), V(0, 0, 1), 5.08), False)
sketch5.addGeometry(Part.Circle(V(50.8, 69.85, 0), V(0, 0, 1), 5.08), False)
sketch5.addGeometry(Part.Circle(V(101.6, 69.85, 0), V(0, 0, 1), 5.08), False)
sketch5.addGeometry(Part.Circle(V(152.4, 69.85, 0), V(0, 0, 1), 5.08), False)
sketch5.addGeometry(Part.Circle(V(-152.4, 69.85, 0), V(0, 0, 1), 5.08), False)
sketch5.addConstraint(Sketcher.Constraint("Equal", 0, 1))
sketch5.addConstraint(Sketcher.Constraint("Equal", 1, 2))
sketch5.addConstraint(Sketcher.Constraint("Equal", 2, 3))
sketch5.addConstraint(Sketcher.Constraint("Equal", 3, 4))
sketch5.addConstraint(Sketcher.Constraint("Equal", 4, 5))
sketch5.addConstraint(Sketcher.Constraint("Equal", 5, 6))
sketch5.addConstraint(Sketcher.Constraint("Equal", 6, 7))
sketch5.addConstraint(Sketcher.Constraint("Equal", 7, 8))
sketch5.addConstraint(Sketcher.Constraint("Equal", 8, 9))
sketch5.addConstraint(Sketcher.Constraint("Equal", 9, 10))
sketch5.addConstraint(Sketcher.Constraint("Equal", 10, 11))
sketch5.addConstraint(Sketcher.Constraint("Equal", 11, 12))
sketch5.addConstraint(Sketcher.Constraint("Equal", 12, 13))
sketch5.addConstraint(Sketcher.Constraint("Symmetric", 5, 3, 7, 3, -1, 1))
sketch5.addConstraint(Sketcher.Constraint("Symmetric", 4, 3, 8, 3, -1, 1))
sketch5.addConstraint(Sketcher.Constraint("Symmetric", 3, 3, 9, 3, -1, 1))
sketch5.addConstraint(Sketcher.Constraint("Symmetric", 2, 3, 10, 3, -1, 1))
sketch5.addConstraint(Sketcher.Constraint("Symmetric", 1, 3, 11, 3, -1, 1))
sketch5.addConstraint(Sketcher.Constraint("Symmetric", 0, 3, 12, 3, -1, 1))
sketch5.addConstraint(Sketcher.Constraint("Symmetric", 6, 3, 13, 3, -1, 1))
sketch5.addConstraint(Sketcher.Constraint("Symmetric", 2, 3, 4, 3, -2))
sketch5.addConstraint(Sketcher.Constraint("Symmetric", 1, 3, 5, 3, -2))
sketch5.addConstraint(Sketcher.Constraint("Symmetric", 0, 3, 6, 3, -2))
sketch5.addConstraint(Sketcher.Constraint("PointOnObject", 3, 3, -2))
sketch5.addConstraint(Sketcher.Constraint("Horizontal", 0, 3, 1, 3))
sketch5.addConstraint(Sketcher.Constraint("Horizontal", 1, 3, 2, 3))
sketch5.addConstraint(Sketcher.Constraint("Horizontal", 2, 3, 3, 3))
sketch5.addConstraint(Sketcher.Constraint("Diameter", 0, Q("0.4 in")))
sketch5.addConstraint(Sketcher.Constraint("DistanceX", 0, 3, -1, 1, Q("6 in")))
sketch5.addConstraint(Sketcher.Constraint("DistanceX", 1, 3, -1, 1, Q("4 in")))
sketch5.addConstraint(Sketcher.Constraint("DistanceX", 2, 3, -1, 1, Q("2 in")))
sketch5.addConstraint(Sketcher.Constraint("DistanceY", 1, 3, 7, 3, Q("5.5 in")))
pocket3 = body.newObject("PartDesign::Pocket", "Pocket002")
pocket3.Profile = sketch5
pocket3.Length = Q("0.25 in")
pocket3.Reversed = True

sketch6 = body.newObject("Sketcher::SketchObject", "Sketch005")
sketch6.AttachmentSupport = (doc.getObject("XY_Plane"), [""])
sketch6.MapMode = "FlatFace"
sketch6.AttachmentOffset = App.Placement(V(0, 0, 2.5 * 25.4), App.Rotation())
sketch6.addGeometry(Part.Circle(V(-127, 6.35, 0), V(0, 0, 1), 2.5527), False)
sketch6.addGeometry(Part.Circle(V(-76.2, 6.35, 0), V(0, 0, 1), 2.5527), False)
sketch6.addGeometry(Part.Circle(V(-25.4, 6.35, 0), V(0, 0, 1), 2.5527), False)
sketch6.addGeometry(Part.Circle(V(25.4, 6.35, 0), V(0, 0, 1), 2.5527), False)
sketch6.addGeometry(Part.Circle(V(76.2, 6.35, 0), V(0, 0, 1), 2.5527), False)
sketch6.addGeometry(Part.Circle(V(127, 6.35, 0), V(0, 0, 1), 2.5527), False)
sketch6.addConstraint(Sketcher.Constraint("Equal", 0, 1))
sketch6.addConstraint(Sketcher.Constraint("Equal", 1, 2))
sketch6.addConstraint(Sketcher.Constraint("Equal", 2, 3))
sketch6.addConstraint(Sketcher.Constraint("Equal", 3, 4))
sketch6.addConstraint(Sketcher.Constraint("Equal", 4, 5))
sketch6.addConstraint(Sketcher.Constraint("Symmetric", 2, 3, 3, 3, -2))
sketch6.addConstraint(Sketcher.Constraint("Symmetric", 1, 3, 4, 3, -2))
sketch6.addConstraint(Sketcher.Constraint("Symmetric", 0, 3, 5, 3, -2))
sketch6.addConstraint(Sketcher.Constraint("Horizontal", 0, 3, 1, 3))
sketch6.addConstraint(Sketcher.Constraint("Horizontal", 1, 3, 2, 3))
sketch6.addConstraint(Sketcher.Constraint("Diameter", 0, Q("0.201 in")))
sketch6.addConstraint(Sketcher.Constraint("DistanceX", 0, 3, -1, 1, Q("5 in")))
sketch6.addConstraint(Sketcher.Constraint("DistanceX", 1, 3, -1, 1, Q("3 in")))
sketch6.addConstraint(Sketcher.Constraint("DistanceX", 2, 3, -1, 1, Q("1 in")))
sketch6.addConstraint(Sketcher.Constraint("DistanceY", -1, 1, 0, 3, Q("0.25 in")))
pocket4 = body.newObject("PartDesign::Pocket", "Pocket003")
pocket4.Profile = sketch6
pocket4.Length = Q("1 in")
doc.recompute()

mirrored = body.newObject("PartDesign::Mirrored", "Mirrored")
mirrored.Originals = [pocket4]
mirrored.MirrorPlane = (doc.getObject("XY_Plane"), [""])
body.Tip = mirrored
doc.recompute()

datumplane = body.newObject("PartDesign::Plane", "DatumPlane")
datumplane.AttachmentSupport = (doc.getObject("XZ_Plane"), [""])
datumplane.MapMode = "FlatFace"
datumplane.AttachmentOffset = App.Placement(V(0, 0, -0.25 * 25.4), App.Rotation())
mirrored2 = body.newObject("PartDesign::Mirrored", "Mirrored001")
mirrored2.Originals = [pocket1]
mirrored2.MirrorPlane = (datumplane, [""])
body.Tip = mirrored2

doc.recompute()
